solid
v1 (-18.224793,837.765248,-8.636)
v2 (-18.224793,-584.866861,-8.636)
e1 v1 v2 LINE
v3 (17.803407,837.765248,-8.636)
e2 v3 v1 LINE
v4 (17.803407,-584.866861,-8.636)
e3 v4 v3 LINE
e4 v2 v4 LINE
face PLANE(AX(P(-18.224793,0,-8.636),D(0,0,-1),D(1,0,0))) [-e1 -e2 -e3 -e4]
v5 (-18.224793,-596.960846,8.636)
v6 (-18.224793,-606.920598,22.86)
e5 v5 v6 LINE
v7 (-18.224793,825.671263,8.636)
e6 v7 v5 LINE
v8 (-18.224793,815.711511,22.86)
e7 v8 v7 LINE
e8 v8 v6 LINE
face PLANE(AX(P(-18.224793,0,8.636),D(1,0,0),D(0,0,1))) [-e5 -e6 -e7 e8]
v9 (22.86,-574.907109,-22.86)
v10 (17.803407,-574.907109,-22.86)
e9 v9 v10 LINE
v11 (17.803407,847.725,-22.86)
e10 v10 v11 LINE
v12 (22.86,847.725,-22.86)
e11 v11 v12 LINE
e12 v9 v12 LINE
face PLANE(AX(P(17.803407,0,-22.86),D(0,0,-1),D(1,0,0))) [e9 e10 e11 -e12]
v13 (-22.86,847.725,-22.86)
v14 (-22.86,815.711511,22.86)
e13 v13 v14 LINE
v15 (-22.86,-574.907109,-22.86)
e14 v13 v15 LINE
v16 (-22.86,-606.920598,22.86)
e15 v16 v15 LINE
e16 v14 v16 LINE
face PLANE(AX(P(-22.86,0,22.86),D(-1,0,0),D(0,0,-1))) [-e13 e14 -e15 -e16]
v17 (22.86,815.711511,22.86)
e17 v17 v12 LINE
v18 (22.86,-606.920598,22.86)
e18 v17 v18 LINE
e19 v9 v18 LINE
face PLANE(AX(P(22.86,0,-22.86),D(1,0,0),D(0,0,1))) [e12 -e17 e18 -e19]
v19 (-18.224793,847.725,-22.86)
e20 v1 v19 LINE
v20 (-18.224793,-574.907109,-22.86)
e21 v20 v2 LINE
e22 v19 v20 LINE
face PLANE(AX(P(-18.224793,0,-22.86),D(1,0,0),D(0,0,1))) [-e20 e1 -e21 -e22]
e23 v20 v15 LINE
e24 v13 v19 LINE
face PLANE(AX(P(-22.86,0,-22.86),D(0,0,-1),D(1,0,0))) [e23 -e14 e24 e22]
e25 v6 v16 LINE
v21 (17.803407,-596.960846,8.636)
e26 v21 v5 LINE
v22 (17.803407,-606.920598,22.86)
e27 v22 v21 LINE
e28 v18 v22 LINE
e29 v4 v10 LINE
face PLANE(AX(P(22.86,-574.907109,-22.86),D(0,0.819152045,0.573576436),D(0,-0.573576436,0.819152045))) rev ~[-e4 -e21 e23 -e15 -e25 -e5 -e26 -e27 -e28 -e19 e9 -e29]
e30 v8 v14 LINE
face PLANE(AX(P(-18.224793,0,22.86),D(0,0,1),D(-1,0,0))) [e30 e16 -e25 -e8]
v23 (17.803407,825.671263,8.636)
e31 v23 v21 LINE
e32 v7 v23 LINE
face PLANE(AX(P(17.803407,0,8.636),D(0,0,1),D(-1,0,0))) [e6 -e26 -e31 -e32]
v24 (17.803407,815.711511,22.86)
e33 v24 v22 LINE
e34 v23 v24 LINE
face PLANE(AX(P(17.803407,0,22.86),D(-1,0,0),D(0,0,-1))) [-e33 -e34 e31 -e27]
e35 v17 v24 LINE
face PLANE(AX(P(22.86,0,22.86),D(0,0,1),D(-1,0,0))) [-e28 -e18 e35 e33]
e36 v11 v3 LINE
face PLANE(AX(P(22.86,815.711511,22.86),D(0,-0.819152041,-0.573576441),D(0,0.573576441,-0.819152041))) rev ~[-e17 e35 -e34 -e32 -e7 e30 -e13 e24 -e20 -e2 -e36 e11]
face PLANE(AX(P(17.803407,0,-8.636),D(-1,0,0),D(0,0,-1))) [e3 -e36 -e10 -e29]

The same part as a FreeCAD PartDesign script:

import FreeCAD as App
import Part
import Sketcher
from FreeCAD import Vector
Q = App.Units.Quantity


def add_polygon(sketch, points):
    """Adds a closed chain of lines whose ends are joined by coincident constraints."""
    first, n = sketch.GeometryCount, len(points)
    for a, b in zip(points, points[1:] + points[:1]):
        sketch.addGeometry(Part.LineSegment(App.Vector(*a, 0), App.Vector(*b, 0)), False)
    for i in range(n):
        sketch.addConstraint(Sketcher.Constraint("Coincident", first + i, 2, first + (i + 1) % n, 1))

doc = App.newDocument("Part")
body = doc.addObject("PartDesign::Body", "Body")

# Sketch on XZ plane
sketch1 = body.newObject("Sketcher::SketchObject", "Sketch")
sketch1.AttachmentSupport = (doc.getObject("XZ_Plane"), [""])
sketch1.MapMode = "FlatFace"
add_polygon(sketch1, [(22.9, -22.9), (22.9, 22.9), (17.8, 22.9), (17.8, 8.6), (-18.2, 8.6), (-18.2, 22.9), (-22.9, 22.9), (-22.9, -22.9), (-18.2, -22.9), (-18.2, -8.6), (17.8, -8.6), (17.8, -22.9)])  # lines 0-11
sketch1.addConstraint(Sketcher.Constraint("Vertical", 0))
sketch1.addConstraint(Sketcher.Constraint("Horizontal", 1))
sketch1.addConstraint(Sketcher.Constraint("Vertical", 2))
sketch1.addConstraint(Sketcher.Constraint("Horizontal", 3))
sketch1.addConstraint(Sketcher.Constraint("Vertical", 4))
sketch1.addConstraint(Sketcher.Constraint("Horizontal", 5))
sketch1.addConstraint(Sketcher.Constraint("Vertical", 6))
sketch1.addConstraint(Sketcher.Constraint("Horizontal", 7))
sketch1.addConstraint(Sketcher.Constraint("Vertical", 8))
sketch1.addConstraint(Sketcher.Constraint("Horizontal", 9))
sketch1.addConstraint(Sketcher.Constraint("Vertical", 10))
sketch1.addConstraint(Sketcher.Constraint("Horizontal", 11))
sketch1.addConstraint(Sketcher.Constraint("Symmetric", 0, 2, 6, 2, -1, 1))
sketch1.addConstraint(Sketcher.Constraint("Symmetric", 4, 2, 7, 2, -1))
sketch1.addConstraint(Sketcher.Constraint("Symmetric", 2, 2, 9, 2, -1))
sketch1.addConstraint(Sketcher.Constraint("Horizontal", 7, 2, 10, 2))
sketch1.addConstraint(Sketcher.Constraint("DistanceY", 0, 1, 0, 2, Q("1.8 in")))
sketch1.addConstraint(Sketcher.Constraint("DistanceY", 2, 2, 2, 1, Q("0.56 in")))
sketch1.addConstraint(Sketcher.Constraint("DistanceX", -1, 1, 0, 2, Q("0.9 in")))
sketch1.addConstraint(Sketcher.Constraint("DistanceX", 3, 2, 3, 1, 36.0282))
sketch1.addConstraint(Sketcher.Constraint("DistanceX", 1, 2, 1, 1, 5.056593))
pad1 = body.newObject("PartDesign::Pad", "Pad")
pad1.Profile = sketch1
pad1.Length = Q("66.75 in")
pad1.Midplane = True

# Sketch on YZ plane
sketch2 = body.newObject("Sketcher::SketchObject", "Sketch001")
sketch2.AttachmentSupport = (doc.getObject("YZ_Plane"), [""])
sketch2.MapMode = "FlatFace"
sketch2.AttachmentOffset = App.Placement(Vector(0, 0, 0.9 * 25.4), App.Rotation())
add_polygon(sketch2, [(-575, -23), (-848, 367), (-848, -23)])  # lines 0-2
add_polygon(sketch2, [(816, 23), (848, -23), (848, 23)])  # lines 3-5
sketch2.addConstraint(Sketcher.Constraint("Vertical", 1))
sketch2.addConstraint(Sketcher.Constraint("Horizontal", 2))
sketch2.addConstraint(Sketcher.Constraint("Vertical", 4))
sketch2.addConstraint(Sketcher.Constraint("Horizontal", 5))
sketch2.addConstraint(Sketcher.Constraint("Symmetric", 1, 2, 4, 2, -1, 1))
sketch2.addConstraint(Sketcher.Constraint("Parallel", 0, 3))
sketch2.addConstraint(Sketcher.Constraint("Horizontal", 2, 2, 3, 2))
sketch2.addConstraint(Sketcher.Constraint("DistanceY", 4, 1, 4, 2, Q("1.8 in")))
sketch2.addConstraint(Sketcher.Constraint("Angle", 0, Q("125 deg")))
sketch2.addConstraint(Sketcher.Constraint("DistanceX", 1, 2, 3, 2, Q("66.75 in")))
sketch2.addConstraint(Sketcher.Constraint("DistanceX", 2, 1, 2, 2, 272.817891))
pocket1 = body.newObject("PartDesign::Pocket", "Pocket")
pocket1.Profile = sketch2
pocket1.Type = "ThroughAll"

doc.recompute()
